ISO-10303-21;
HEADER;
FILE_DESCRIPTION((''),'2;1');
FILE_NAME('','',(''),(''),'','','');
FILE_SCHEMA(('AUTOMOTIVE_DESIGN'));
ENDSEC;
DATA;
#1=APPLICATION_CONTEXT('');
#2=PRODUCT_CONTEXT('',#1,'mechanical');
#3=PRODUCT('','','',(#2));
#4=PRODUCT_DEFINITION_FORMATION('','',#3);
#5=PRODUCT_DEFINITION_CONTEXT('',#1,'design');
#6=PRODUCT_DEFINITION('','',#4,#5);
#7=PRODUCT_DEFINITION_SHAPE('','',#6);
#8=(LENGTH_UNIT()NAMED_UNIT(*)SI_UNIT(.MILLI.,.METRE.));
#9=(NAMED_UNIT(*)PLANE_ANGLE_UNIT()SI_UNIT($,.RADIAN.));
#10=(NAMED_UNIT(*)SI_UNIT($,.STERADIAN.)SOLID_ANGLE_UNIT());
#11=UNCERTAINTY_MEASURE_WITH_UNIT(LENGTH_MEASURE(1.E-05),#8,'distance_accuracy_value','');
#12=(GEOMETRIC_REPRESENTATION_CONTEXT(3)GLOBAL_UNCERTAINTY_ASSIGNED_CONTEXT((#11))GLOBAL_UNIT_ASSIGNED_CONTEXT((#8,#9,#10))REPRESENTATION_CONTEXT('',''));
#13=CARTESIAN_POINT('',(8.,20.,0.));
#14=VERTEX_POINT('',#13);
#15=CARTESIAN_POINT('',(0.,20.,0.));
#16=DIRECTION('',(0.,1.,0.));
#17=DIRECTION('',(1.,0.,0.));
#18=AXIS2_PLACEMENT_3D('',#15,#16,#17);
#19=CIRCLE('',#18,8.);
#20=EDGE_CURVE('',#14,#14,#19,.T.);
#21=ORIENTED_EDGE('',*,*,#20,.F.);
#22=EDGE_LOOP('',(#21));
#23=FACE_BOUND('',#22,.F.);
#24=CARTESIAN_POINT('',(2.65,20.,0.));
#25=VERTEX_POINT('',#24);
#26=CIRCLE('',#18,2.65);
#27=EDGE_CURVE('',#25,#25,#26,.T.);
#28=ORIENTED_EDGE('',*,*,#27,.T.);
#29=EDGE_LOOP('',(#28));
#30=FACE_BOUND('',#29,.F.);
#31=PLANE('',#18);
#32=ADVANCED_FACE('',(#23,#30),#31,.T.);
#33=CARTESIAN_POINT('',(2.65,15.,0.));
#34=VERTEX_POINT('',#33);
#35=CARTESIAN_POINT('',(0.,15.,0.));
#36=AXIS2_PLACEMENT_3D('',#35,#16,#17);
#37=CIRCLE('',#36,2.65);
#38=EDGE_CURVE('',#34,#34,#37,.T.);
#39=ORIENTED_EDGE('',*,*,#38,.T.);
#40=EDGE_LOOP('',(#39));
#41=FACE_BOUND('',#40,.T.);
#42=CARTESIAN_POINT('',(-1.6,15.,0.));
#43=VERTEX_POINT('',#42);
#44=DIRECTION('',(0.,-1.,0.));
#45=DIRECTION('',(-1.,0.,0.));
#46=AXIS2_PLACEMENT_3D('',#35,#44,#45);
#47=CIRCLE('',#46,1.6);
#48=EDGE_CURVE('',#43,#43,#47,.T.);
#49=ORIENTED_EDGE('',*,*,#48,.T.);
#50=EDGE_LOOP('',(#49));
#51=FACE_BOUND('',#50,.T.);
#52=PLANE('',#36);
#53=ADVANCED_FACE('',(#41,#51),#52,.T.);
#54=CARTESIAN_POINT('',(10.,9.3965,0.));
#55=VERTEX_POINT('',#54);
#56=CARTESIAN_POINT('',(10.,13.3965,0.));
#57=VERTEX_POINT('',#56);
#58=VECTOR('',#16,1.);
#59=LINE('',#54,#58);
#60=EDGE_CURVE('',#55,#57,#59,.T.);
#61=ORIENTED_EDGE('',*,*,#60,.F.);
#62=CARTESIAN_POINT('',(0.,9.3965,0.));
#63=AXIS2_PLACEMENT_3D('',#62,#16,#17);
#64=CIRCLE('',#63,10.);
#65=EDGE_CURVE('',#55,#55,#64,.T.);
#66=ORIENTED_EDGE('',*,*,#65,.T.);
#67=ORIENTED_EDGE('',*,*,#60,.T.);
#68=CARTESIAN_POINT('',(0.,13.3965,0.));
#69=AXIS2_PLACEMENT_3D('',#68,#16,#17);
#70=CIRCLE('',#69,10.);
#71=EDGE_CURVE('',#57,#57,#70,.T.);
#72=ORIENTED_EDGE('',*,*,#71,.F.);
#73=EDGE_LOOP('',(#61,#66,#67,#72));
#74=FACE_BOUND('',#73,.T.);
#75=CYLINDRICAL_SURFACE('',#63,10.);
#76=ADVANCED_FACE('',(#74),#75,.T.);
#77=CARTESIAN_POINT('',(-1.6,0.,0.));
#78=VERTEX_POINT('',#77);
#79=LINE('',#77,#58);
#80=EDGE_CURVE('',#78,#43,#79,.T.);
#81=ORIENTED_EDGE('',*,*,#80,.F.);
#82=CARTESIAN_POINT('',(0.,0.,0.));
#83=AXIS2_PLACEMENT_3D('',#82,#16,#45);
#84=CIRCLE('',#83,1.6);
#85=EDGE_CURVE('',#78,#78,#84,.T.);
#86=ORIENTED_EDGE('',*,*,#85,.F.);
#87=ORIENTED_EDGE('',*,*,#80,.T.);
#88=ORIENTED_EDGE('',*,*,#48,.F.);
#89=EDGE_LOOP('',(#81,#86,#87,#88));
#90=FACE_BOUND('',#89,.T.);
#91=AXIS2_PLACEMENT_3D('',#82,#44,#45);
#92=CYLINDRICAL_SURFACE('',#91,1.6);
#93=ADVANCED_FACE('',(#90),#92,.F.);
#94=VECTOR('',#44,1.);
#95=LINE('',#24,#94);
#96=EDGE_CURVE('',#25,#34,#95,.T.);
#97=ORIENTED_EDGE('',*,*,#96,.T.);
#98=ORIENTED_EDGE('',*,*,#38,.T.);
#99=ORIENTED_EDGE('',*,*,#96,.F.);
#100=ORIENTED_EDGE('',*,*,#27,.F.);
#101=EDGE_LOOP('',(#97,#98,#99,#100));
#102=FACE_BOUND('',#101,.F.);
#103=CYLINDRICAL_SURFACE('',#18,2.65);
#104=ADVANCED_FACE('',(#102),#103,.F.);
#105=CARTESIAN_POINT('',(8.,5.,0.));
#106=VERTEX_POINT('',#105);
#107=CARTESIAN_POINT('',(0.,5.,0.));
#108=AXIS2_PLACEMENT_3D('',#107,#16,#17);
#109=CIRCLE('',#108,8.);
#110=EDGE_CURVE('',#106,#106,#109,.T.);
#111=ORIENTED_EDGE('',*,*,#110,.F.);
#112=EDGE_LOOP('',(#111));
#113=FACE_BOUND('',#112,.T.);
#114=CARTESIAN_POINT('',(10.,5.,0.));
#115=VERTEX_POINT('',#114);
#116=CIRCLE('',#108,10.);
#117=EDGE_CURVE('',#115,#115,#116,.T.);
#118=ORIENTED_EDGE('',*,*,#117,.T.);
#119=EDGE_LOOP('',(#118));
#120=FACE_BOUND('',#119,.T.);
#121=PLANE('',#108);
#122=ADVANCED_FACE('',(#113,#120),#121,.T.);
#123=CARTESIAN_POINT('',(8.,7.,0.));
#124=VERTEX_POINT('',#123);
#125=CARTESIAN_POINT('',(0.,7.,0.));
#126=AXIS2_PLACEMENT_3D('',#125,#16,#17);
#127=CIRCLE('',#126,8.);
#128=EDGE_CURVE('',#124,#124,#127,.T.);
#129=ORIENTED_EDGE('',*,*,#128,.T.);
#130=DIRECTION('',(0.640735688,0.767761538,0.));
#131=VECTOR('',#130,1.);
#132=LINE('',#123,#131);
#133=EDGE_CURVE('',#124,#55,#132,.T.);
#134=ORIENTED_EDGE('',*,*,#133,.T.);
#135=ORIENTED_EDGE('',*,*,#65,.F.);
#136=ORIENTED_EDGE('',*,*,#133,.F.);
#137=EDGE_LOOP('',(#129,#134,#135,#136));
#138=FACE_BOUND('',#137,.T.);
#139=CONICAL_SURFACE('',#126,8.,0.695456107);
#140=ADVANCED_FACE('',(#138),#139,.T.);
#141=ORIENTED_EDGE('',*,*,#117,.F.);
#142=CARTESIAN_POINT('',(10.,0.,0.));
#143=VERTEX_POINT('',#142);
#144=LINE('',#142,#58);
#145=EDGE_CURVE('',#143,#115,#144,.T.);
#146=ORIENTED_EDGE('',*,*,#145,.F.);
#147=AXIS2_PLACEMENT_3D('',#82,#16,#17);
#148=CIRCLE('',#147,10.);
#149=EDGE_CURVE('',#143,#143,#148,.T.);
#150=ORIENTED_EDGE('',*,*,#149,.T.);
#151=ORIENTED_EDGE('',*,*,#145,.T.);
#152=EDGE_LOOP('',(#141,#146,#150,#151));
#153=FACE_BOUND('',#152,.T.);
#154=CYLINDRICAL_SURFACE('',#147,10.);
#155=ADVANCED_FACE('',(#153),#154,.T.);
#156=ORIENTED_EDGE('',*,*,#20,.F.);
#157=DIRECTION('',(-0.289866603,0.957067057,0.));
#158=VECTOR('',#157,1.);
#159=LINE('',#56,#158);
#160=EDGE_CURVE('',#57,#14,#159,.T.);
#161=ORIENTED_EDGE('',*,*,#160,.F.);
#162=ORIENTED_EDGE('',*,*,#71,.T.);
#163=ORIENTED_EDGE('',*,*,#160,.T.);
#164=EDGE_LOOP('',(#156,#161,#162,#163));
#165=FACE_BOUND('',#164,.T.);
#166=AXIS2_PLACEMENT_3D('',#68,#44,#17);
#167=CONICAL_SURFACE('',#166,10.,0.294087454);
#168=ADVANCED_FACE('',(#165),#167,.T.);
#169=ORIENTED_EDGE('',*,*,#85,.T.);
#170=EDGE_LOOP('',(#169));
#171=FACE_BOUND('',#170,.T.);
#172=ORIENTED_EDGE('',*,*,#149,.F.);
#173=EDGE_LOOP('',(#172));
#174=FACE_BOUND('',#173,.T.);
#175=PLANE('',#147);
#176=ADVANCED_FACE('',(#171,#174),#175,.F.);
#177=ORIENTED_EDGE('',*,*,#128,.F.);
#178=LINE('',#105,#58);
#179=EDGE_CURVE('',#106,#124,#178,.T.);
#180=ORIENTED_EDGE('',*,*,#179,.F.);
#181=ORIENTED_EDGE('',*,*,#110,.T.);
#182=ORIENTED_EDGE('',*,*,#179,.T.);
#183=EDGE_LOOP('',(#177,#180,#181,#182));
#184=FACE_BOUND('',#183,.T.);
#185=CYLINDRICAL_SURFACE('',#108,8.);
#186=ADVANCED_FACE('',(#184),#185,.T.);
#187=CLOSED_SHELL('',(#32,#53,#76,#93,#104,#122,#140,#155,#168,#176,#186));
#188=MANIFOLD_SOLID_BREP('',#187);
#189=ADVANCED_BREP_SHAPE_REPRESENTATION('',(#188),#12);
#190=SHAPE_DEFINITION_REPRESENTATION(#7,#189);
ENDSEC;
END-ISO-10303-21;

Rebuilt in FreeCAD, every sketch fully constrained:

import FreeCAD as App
import Part
import Sketcher

V = App.Vector
Q = App.Units.Quantity


def add_polygon(sketch, points):
    """Adds a closed chain of lines whose ends are joined by coincident constraints."""
    first, n = sketch.GeometryCount, len(points)
    for a, b in zip(points, points[1:] + points[:1]):
        sketch.addGeometry(Part.LineSegment(App.Vector(*a, 0), App.Vector(*b, 0)), False)
    for i in range(n):
        sketch.addConstraint(Sketcher.Constraint("Coincident", first + i, 2, first + (i + 1) % n, 1))

doc = App.newDocument("Part")
body = doc.addObject("PartDesign::Body", "Body")

# Sketch on XY plane
sketch1 = body.newObject("Sketcher::SketchObject", "Sketch")
sketch1.AttachmentSupport = (doc.getObject("XY_Plane"), [""])
sketch1.MapMode = "FlatFace"
add_polygon(sketch1, [(0, 20), (0, 0), (10, 0), (10, 5), (8, 5), (8, 7), (10, 9.4), (10, 13.4), (8, 20)])  # lines 0-8
sketch1.addConstraint([
    Sketcher.Constraint("Vertical", 0),
    Sketcher.Constraint("Horizontal", 1),
    Sketcher.Constraint("Vertical", 2),
    Sketcher.Constraint("Horizontal", 3),
    Sketcher.Constraint("Vertical", 4),
    Sketcher.Constraint("Vertical", 6),
    Sketcher.Constraint("Horizontal", 8),
    Sketcher.Constraint("Coincident", 0, 2, -1, 1),
    Sketcher.Constraint("Vertical", 2, 2, 5, 2),
    Sketcher.Constraint("Vertical", 4, 2, 7, 2),
    Sketcher.Constraint("Equal", 3, 4),
    Sketcher.Constraint("DistanceX", 1, 1, 1, 2, 10.0),
    Sketcher.Constraint("DistanceX", 3, 2, 3, 1, 2.0),
    Sketcher.Constraint("DistanceY", 0, 2, 0, 1, 20.0),
    Sketcher.Constraint("DistanceY", 2, 1, 2, 2, 5.0),
    Sketcher.Constraint("DistanceY", 6, 1, 6, 2, 4.0),
    Sketcher.Constraint("Angle", 7, Q("106.85 deg")),
])
revolution = body.newObject("PartDesign::Revolution", "Revolution")
revolution.Profile = sketch1
revolution.ReferenceAxis = (sketch1, ["V_Axis"])
revolution.Angle = 360

# Sketch on XZ plane
sketch2 = body.newObject("Sketcher::SketchObject", "Sketch001")
sketch2.AttachmentSupport = (doc.getObject("XZ_Plane"), [""])
sketch2.MapMode = "FlatFace"
sketch2.addGeometry(Part.Circle(V(0, 0, 0), V(0, 0, 1), 1.6), False)
sketch2.addConstraint([
    Sketcher.Constraint("Coincident", 0, 3, -1, 1),
    Sketcher.Constraint("Diameter", 0, 3.2),
])
pocket1 = body.newObject("PartDesign::Pocket", "Pocket")
pocket1.Profile = sketch2
pocket1.Type = "ThroughAll"

# Sketch on XZ plane
sketch3 = body.newObject("Sketcher::SketchObject", "Sketch002")
sketch3.AttachmentSupport = (doc.getObject("XZ_Plane"), [""])
sketch3.MapMode = "FlatFace"
sketch3.AttachmentOffset = App.Placement(V(0, 0, -20), App.Rotation())
sketch3.addGeometry(Part.Circle(V(0, 0, 0), V(0, 0, 1), 2.6), False)
sketch3.addConstraint([
    Sketcher.Constraint("Coincident", 0, 3, -1, 1),
    Sketcher.Constraint("Diameter", 0, 5.3),
])
pocket2 = body.newObject("PartDesign::Pocket", "Pocket001")
pocket2.Profile = sketch3
pocket2.Length = 5
pocket2.Reversed = True

doc.recompute()
